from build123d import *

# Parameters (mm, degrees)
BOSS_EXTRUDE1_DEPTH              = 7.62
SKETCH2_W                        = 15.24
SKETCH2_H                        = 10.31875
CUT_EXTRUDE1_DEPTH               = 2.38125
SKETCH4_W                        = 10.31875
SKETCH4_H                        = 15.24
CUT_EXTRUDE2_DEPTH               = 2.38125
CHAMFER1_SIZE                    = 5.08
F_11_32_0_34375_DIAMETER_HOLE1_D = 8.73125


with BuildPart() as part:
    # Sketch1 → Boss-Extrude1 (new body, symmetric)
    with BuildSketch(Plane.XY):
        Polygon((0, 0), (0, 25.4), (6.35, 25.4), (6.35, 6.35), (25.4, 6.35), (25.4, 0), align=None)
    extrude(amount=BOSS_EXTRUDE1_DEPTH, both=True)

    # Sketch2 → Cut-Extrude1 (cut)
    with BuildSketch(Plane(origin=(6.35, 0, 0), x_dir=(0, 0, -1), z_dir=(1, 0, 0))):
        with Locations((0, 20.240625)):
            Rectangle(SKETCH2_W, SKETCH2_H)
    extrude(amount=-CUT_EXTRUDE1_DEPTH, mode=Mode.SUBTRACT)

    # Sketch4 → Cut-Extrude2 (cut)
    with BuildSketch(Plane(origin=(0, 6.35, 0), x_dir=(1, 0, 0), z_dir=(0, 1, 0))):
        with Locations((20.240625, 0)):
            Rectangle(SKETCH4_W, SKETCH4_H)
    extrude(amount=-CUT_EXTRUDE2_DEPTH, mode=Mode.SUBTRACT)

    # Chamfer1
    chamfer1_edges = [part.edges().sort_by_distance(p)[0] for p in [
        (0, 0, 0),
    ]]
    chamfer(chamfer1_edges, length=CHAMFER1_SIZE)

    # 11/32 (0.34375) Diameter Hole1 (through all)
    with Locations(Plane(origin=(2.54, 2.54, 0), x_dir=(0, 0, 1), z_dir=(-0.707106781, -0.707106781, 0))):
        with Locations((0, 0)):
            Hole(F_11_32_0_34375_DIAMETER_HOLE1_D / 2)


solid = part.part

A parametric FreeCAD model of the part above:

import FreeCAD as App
import Part
import Sketcher
from FreeCAD import Vector
Q = App.Units.Quantity


def edges_at(feature, points):
    """Names of the edges that pass closest to the given points."""
    edges = feature.Shape.Edges
    near = lambda p: min(range(len(edges)), key=lambda i: edges[i].distToShape(Part.Vertex(*p))[0])
    return sorted({f"Edge{near(p) + 1}" for p in points})


def add_polygon(sketch, points):
    """Adds a closed chain of lines whose ends are joined by coincident constraints."""
    first, n = sketch.GeometryCount, len(points)
    for a, b in zip(points, points[1:] + points[:1]):
        sketch.addGeometry(Part.LineSegment(App.Vector(*a, 0), App.Vector(*b, 0)), False)
    for i in range(n):
        sketch.addConstraint(Sketcher.Constraint("Coincident", first + i, 2, first + (i + 1) % n, 1))

doc = App.newDocument("Part")
body = doc.addObject("PartDesign::Body", "Body")

sketch1 = body.newObject("Sketcher::SketchObject", "Sketch")
sketch1.AttachmentSupport = (doc.getObject("XY_Plane"), [""])
sketch1.MapMode = "FlatFace"
add_polygon(sketch1, [(0, 25), (0, 0), (25, 0), (25, 6), (6, 6), (6, 25)])
sketch1.addConstraint([
    Sketcher.Constraint("Vertical", 0),
    Sketcher.Constraint("Horizontal", 1),
    Sketcher.Constraint("Vertical", 2),
    Sketcher.Constraint("Horizontal", 3),
    Sketcher.Constraint("Vertical", 4),
    Sketcher.Constraint("Horizontal", 5),
    Sketcher.Constraint("Coincident", 0, 2, -1, 1),
    Sketcher.Constraint("Equal", 1, 0),
    Sketcher.Constraint("Equal", 5, 2),
    Sketcher.Constraint("DistanceX", 1, 1, 1, 2, Q("1 in")),
    Sketcher.Constraint("DistanceX", 3, 2, 3, 1, Q("0.75 in")),
])
pad1 = body.newObject("PartDesign::Pad", "Pad")
pad1.Profile = sketch1
pad1.Length = Q("0.6 in")
pad1.Midplane = True

sketch2 = body.newObject("Sketcher::SketchObject", "Sketch001")
sketch2.AttachmentSupport = (doc.getObject("YZ_Plane"), [""])
sketch2.MapMode = "FlatFace"
sketch2.AttachmentOffset = App.Placement(Vector(0, 0, 0.25 * 25.4), App.Rotation())
add_polygon(sketch2, [(25, 8), (15, 8), (15, -8), (25, -8)])
sketch2.addConstraint([
    Sketcher.Constraint("Horizontal", 0),
    Sketcher.Constraint("Vertical", 1),
    Sketcher.Constraint("Horizontal", 2),
    Sketcher.Constraint("Vertical", 3),
    Sketcher.Constraint("DistanceY", 1, 2, 1, 1, Q("0.6 in")),
    Sketcher.Constraint("DistanceX", -1, 1, 2, 2, Q("1 in")),
    Sketcher.Constraint("DistanceY", -1, 1, 0, 2, Q("0.3 in")),
    Sketcher.Constraint("DistanceX", 0, 2, 0, 1, Q("0.40625 in")),
])
pocket1 = body.newObject("PartDesign::Pocket", "Pocket")
pocket1.Profile = sketch2
pocket1.Length = Q("0.09375 in")

sketch3 = body.newObject("Sketcher::SketchObject", "Sketch002")
sketch3.AttachmentSupport = (doc.getObject("XZ_Plane"), [""])
sketch3.MapMode = "FlatFace"
sketch3.AttachmentOffset = App.Placement(Vector(0, 0, -0.25 * 25.4), App.Rotation())
add_polygon(sketch3, [(15, -8), (15, 8), (25, 8), (25, -8)])
sketch3.addConstraint([
    Sketcher.Constraint("Vertical", 0),
    Sketcher.Constraint("Horizontal", 1),
    Sketcher.Constraint("Vertical", 2),
    Sketcher.Constraint("Horizontal", 3),
    Sketcher.Constraint("DistanceY", 0, 1, 0, 2, Q("0.6 in")),
    Sketcher.Constraint("DistanceX", -1, 1, 1, 2, Q("1 in")),
    Sketcher.Constraint("DistanceY", -1, 1, 0, 2, Q("0.3 in")),
    Sketcher.Constraint("DistanceX", 1, 1, 1, 2, Q("0.40625 in")),
])
pocket2 = body.newObject("PartDesign::Pocket", "Pocket001")
pocket2.Profile = sketch3
pocket2.Length = Q("0.09375 in")
pocket2.Reversed = True
doc.recompute()

chamfer = body.newObject("PartDesign::Chamfer", "Chamfer")
chamfer.Base = (pocket2, edges_at(pocket2, [(0, 0, 0)]))
chamfer.Size = Q("0.2 in")

sketch4 = body.newObject("Sketcher::SketchObject", "Sketch003")
sketch4.Placement = App.Placement(Vector(2.54, 2.54, 0), App.Rotation(Vector(0, 0, 1), Vector(-0.707106781, 0.707106781, 0), Vector(-0.707106781, -0.707106781, 0), "ZXY"))
sketch4.addGeometry(Part.Circle(Vector(0, 0, 0), Vector(0, 0, 1), 4.4), False)
sketch4.addConstraint([
    Sketcher.Constraint("Coincident", 0, 3, -1, 1),
    Sketcher.Constraint("Diameter", 0, Q("0.34375 in")),
])
doc.recompute()
hole = body.newObject("PartDesign::Hole", "Hole")
hole.Profile = sketch4
hole.ThreadType = "None"
hole.Diameter = Q("0.34375 in")
hole.DepthType = "ThroughAll"

doc.recompute()
